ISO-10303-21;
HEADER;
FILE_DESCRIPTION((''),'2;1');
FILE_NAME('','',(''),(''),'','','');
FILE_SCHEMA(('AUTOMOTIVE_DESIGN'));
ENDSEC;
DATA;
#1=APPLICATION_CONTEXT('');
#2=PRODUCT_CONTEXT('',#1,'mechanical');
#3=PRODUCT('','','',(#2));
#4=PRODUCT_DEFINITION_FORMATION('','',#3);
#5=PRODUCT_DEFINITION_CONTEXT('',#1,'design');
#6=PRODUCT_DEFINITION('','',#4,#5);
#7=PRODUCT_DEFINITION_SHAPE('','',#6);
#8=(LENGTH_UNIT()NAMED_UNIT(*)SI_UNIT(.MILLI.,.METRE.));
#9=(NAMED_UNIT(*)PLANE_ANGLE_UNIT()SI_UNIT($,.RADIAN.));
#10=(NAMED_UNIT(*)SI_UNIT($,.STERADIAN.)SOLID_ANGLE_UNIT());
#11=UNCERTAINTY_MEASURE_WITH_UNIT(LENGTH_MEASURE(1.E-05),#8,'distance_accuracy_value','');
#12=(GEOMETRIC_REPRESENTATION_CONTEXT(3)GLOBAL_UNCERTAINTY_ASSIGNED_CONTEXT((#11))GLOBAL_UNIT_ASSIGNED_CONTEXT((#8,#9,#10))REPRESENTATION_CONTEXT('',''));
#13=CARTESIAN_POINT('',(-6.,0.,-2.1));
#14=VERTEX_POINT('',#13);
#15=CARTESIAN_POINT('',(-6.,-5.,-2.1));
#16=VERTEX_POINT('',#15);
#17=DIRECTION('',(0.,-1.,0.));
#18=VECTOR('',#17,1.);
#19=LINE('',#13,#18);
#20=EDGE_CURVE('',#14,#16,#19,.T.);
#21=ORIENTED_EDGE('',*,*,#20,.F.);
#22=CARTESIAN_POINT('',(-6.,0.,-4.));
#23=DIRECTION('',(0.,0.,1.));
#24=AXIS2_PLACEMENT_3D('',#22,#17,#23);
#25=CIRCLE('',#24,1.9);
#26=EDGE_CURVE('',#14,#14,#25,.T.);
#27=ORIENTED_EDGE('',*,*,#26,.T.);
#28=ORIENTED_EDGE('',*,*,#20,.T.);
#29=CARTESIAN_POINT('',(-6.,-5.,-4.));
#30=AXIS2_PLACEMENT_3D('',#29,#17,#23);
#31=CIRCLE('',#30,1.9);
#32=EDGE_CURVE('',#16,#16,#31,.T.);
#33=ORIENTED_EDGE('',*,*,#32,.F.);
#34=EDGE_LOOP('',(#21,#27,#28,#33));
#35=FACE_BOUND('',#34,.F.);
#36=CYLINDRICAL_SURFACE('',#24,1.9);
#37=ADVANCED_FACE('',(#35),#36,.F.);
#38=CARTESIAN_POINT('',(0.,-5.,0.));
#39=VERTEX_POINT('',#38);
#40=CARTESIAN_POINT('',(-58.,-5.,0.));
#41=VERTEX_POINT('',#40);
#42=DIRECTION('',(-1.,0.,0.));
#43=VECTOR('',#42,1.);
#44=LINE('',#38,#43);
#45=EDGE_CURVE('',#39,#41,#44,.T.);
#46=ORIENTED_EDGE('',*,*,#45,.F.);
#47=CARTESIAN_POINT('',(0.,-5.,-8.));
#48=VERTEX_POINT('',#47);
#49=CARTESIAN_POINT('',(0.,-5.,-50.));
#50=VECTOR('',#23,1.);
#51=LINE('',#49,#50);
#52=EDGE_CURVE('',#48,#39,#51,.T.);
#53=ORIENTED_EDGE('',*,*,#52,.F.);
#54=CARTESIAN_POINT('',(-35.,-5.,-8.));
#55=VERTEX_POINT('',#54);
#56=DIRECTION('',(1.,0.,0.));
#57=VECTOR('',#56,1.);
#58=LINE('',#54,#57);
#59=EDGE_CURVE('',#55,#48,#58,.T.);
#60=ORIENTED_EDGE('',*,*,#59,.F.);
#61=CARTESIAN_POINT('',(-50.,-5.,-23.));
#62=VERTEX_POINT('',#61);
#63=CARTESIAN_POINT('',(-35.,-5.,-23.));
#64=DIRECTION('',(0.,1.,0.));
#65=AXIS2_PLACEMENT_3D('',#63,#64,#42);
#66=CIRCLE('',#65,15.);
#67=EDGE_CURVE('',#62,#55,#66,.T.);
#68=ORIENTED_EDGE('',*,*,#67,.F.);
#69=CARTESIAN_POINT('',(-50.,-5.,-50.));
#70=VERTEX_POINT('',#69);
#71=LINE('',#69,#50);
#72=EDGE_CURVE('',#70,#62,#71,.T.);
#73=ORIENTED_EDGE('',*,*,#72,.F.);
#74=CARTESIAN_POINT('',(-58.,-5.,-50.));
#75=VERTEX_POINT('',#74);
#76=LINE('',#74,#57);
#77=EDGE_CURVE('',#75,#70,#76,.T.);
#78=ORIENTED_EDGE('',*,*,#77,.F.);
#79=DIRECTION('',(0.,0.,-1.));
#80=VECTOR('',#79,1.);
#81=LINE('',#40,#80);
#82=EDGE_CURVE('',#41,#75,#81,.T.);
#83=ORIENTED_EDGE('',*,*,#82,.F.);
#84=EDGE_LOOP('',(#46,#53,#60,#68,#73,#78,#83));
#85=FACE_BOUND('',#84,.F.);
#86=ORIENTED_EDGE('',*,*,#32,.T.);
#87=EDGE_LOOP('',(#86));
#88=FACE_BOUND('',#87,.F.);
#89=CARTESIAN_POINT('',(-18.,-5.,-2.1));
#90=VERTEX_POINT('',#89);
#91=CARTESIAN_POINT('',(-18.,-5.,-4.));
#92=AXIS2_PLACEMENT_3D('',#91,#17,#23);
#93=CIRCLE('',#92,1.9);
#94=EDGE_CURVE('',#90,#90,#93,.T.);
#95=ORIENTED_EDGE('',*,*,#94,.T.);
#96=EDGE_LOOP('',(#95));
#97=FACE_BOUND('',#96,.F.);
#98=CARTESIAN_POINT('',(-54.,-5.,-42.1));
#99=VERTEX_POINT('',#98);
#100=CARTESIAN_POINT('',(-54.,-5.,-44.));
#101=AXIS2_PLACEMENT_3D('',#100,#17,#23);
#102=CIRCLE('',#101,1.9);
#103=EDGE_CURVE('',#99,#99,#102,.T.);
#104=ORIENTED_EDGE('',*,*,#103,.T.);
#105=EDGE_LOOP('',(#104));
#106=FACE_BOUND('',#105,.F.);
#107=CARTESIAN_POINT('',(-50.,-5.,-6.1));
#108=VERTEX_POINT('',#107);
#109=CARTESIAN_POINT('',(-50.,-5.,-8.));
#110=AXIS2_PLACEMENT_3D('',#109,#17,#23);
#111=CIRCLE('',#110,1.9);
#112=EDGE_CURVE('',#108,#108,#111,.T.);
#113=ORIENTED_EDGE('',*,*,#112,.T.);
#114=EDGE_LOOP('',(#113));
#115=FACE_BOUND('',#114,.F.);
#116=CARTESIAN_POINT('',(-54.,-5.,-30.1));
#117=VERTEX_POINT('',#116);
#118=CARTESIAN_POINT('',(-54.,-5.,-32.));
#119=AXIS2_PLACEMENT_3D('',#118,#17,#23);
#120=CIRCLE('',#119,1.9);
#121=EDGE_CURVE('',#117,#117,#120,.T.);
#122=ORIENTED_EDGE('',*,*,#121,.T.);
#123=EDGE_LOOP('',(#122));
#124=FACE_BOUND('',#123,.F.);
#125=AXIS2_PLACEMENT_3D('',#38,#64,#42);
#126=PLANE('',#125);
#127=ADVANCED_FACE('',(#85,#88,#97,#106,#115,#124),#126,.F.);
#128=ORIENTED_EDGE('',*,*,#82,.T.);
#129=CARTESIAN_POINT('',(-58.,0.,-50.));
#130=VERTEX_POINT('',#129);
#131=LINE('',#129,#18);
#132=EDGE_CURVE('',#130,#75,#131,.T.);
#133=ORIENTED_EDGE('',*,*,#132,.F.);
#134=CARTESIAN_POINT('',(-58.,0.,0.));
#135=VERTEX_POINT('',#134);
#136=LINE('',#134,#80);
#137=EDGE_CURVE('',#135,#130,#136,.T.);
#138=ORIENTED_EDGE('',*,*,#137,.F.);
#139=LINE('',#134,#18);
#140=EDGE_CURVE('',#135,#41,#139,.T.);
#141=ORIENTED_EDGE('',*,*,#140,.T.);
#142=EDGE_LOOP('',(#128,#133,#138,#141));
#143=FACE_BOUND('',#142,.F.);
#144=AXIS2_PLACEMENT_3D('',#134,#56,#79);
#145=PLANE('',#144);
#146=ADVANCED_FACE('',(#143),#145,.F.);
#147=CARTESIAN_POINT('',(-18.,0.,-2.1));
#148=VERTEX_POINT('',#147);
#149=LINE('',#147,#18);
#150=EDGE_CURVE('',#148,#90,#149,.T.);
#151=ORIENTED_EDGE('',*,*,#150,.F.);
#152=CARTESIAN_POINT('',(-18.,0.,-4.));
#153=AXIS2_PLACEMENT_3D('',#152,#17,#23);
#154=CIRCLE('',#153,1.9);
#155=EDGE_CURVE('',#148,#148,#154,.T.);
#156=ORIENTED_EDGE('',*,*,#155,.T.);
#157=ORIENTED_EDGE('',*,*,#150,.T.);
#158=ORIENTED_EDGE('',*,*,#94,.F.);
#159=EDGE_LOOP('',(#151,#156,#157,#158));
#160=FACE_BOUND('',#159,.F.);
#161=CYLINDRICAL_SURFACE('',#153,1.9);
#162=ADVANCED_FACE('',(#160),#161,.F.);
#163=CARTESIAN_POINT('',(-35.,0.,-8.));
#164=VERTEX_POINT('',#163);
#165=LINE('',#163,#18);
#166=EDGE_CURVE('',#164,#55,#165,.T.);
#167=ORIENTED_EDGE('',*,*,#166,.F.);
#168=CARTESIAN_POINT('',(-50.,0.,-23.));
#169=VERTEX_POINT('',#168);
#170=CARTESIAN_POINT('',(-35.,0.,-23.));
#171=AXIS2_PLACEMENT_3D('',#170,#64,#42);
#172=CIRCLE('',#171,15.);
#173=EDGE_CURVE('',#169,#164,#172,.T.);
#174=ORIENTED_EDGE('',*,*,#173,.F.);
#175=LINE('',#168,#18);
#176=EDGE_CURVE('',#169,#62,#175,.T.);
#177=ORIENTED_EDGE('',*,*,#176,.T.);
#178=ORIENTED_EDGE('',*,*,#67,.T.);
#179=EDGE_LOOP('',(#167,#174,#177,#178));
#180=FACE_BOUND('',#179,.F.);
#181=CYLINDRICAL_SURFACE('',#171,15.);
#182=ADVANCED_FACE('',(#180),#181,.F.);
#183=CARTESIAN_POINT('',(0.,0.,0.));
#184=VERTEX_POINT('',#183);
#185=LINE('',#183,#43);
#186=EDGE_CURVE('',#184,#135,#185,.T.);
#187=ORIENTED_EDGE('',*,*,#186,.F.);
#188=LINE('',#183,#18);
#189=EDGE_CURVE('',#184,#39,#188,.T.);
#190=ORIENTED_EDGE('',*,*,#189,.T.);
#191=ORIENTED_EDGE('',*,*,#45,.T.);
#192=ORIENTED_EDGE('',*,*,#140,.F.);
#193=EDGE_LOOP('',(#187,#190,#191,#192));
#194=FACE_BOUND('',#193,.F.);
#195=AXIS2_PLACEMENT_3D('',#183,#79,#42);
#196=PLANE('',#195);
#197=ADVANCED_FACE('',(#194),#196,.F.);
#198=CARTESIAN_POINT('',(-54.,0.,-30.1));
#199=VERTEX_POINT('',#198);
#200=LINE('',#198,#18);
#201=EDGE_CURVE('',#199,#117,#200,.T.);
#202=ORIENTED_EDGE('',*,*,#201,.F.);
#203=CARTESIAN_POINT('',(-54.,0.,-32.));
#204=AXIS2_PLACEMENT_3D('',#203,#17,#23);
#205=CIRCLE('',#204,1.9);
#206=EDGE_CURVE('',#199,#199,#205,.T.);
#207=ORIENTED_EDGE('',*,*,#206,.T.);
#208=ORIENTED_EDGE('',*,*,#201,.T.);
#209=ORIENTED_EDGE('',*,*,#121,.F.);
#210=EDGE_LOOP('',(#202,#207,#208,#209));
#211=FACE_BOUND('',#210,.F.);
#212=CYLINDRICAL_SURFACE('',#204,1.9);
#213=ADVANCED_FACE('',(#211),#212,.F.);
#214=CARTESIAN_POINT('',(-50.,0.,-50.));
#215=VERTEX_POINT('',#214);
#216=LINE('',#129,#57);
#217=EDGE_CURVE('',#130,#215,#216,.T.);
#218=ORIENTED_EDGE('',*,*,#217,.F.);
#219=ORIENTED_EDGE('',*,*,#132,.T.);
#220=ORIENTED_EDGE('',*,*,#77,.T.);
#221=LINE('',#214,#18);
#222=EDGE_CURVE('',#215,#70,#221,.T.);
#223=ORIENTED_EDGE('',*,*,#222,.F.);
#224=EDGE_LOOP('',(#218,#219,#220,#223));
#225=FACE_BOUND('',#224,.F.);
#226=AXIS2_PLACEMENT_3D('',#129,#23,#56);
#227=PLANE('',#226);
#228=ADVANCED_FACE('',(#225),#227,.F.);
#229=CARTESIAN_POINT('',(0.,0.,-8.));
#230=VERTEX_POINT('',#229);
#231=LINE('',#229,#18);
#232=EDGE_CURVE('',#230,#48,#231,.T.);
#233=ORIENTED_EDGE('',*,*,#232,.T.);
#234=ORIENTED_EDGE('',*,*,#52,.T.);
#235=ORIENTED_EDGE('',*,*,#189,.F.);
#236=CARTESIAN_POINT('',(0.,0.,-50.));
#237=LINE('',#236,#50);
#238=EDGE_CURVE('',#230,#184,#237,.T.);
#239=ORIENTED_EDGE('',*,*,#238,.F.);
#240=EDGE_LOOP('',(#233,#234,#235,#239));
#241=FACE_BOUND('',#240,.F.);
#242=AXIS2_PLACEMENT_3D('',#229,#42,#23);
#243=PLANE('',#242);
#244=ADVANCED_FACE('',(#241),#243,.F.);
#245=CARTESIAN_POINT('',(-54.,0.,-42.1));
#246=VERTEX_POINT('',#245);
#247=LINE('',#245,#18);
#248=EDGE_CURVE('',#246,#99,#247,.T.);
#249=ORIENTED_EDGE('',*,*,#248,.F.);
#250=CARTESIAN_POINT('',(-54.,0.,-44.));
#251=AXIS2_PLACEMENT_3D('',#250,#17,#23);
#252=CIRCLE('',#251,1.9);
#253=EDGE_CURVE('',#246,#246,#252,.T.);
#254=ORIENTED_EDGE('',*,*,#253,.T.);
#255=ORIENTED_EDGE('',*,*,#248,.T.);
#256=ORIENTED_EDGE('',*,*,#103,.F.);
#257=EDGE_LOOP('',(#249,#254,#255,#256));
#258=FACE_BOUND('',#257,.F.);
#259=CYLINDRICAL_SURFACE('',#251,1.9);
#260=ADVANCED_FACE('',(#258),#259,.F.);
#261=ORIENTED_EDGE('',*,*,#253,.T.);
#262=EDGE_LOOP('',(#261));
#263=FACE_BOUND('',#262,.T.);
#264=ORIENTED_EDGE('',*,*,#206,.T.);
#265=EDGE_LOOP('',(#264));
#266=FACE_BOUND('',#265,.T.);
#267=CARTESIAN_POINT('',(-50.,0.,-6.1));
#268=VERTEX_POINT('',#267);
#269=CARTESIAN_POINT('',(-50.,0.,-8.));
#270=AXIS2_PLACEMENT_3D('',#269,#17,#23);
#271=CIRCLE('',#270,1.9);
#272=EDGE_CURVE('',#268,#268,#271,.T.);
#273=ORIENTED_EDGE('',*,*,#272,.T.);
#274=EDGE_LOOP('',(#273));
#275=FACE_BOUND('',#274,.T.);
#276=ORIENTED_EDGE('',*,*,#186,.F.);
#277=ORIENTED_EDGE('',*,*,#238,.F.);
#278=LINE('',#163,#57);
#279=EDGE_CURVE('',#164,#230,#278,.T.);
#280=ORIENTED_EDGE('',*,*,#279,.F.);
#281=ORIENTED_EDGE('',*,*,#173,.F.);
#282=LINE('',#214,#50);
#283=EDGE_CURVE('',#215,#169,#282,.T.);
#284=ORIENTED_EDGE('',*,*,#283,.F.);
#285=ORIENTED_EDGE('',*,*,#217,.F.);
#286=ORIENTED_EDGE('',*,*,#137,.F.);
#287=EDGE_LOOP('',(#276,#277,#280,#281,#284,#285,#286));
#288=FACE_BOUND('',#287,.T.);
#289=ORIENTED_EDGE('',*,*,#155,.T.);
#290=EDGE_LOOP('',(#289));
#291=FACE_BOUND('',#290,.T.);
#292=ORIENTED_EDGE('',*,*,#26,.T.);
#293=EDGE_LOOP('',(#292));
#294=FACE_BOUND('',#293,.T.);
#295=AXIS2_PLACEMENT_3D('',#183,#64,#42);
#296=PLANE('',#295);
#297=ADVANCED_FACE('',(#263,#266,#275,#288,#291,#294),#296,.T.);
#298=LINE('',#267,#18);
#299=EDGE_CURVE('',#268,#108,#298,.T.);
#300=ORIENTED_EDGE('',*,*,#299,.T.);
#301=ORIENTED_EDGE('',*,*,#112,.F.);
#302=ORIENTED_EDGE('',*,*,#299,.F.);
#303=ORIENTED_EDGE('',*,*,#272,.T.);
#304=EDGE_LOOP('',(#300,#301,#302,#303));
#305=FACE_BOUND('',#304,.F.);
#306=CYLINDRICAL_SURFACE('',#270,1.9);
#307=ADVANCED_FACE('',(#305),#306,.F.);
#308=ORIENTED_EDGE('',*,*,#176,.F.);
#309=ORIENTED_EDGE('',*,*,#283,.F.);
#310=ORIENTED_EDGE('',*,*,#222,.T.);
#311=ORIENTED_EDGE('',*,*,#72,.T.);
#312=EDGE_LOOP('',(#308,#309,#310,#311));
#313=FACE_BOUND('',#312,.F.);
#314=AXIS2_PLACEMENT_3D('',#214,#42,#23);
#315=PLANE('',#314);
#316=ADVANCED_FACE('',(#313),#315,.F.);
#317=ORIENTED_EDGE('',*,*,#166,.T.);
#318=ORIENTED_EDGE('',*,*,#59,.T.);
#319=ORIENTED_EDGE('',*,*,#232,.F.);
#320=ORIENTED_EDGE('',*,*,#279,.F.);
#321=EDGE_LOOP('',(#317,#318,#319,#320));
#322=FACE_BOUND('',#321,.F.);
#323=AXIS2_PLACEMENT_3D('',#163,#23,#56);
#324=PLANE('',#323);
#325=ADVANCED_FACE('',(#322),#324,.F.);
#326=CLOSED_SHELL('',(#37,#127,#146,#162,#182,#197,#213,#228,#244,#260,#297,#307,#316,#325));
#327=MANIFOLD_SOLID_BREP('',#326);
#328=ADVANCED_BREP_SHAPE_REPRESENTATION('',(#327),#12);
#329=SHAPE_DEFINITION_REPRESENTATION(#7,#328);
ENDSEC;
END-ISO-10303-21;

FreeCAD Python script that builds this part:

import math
import FreeCAD as App
import Part
import Sketcher
from FreeCAD import Vector

doc = App.newDocument("Part")
body = doc.addObject("PartDesign::Body", "Body")

# Sketch on XZ plane
sketch1 = body.newObject("Sketcher::SketchObject", "Sketch")
sketch1.AttachmentSupport = (doc.getObject("XZ_Plane"), [""])
sketch1.MapMode = "FlatFace"
sketch1.addGeometry([
    Part.LineSegment(Vector(-58, 0, 0), Vector(0, 0, 0)),  # 0
    Part.LineSegment(Vector(0, 0, 0), Vector(0, -8, 0)),  # 1
    Part.LineSegment(Vector(0, -8, 0), Vector(-35, -8, 0)),  # 2
    Part.ArcOfCircle(Part.Circle(Vector(-35, -23, 0), Vector(0, 0, 1), 15), math.radians(90), math.radians(180)),  # 3
    Part.LineSegment(Vector(-50, -23, 0), Vector(-50, -50, 0)),  # 4
    Part.LineSegment(Vector(-50, -50, 0), Vector(-58, -50, 0)),  # 5
    Part.LineSegment(Vector(-58, -50, 0), Vector(-58, 0, 0)),  # 6
], False)
sketch1.addConstraint([
    Sketcher.Constraint("Coincident", 0, 2, 1, 1),
    Sketcher.Constraint("Coincident", 1, 2, 2, 1),
    Sketcher.Constraint("Tangent", 2, 2, 3, 1),
    Sketcher.Constraint("Tangent", 3, 2, 4, 1),
    Sketcher.Constraint("Coincident", 4, 2, 5, 1),
    Sketcher.Constraint("Coincident", 5, 2, 6, 1),
    Sketcher.Constraint("Coincident", 6, 2, 0, 1),
    Sketcher.Constraint("Horizontal", 0),
    Sketcher.Constraint("Vertical", 1),
    Sketcher.Constraint("Horizontal", 2),
    Sketcher.Constraint("Vertical", 4),
    Sketcher.Constraint("Horizontal", 5),
    Sketcher.Constraint("Vertical", 6),
    Sketcher.Constraint("Coincident", 0, 2, -1, 1),
    Sketcher.Constraint("Equal", 5, 1),
    Sketcher.Constraint("Radius", 3, 15.0),
    Sketcher.Constraint("DistanceX", 0, 1, 0, 2, 58.0),
    Sketcher.Constraint("DistanceY", 6, 1, 6, 2, 50.0),
    Sketcher.Constraint("DistanceX", 3, 2, -1, 1, 50.0),
])
pad1 = body.newObject("PartDesign::Pad", "Pad")
pad1.Profile = sketch1
pad1.Length = 5

# Sketch on XZ plane
sketch2 = body.newObject("Sketcher::SketchObject", "Sketch001")
sketch2.AttachmentSupport = (doc.getObject("XZ_Plane"), [""])
sketch2.MapMode = "FlatFace"
sketch2.addGeometry([
    Part.Circle(Vector(-6, -4, 0), Vector(0, 0, 1), 1.9),  # 0
    Part.Circle(Vector(-18, -4, 0), Vector(0, 0, 1), 1.9),  # 1
    Part.Circle(Vector(-54, -32, 0), Vector(0, 0, 1), 1.9),  # 2
    Part.Circle(Vector(-54, -44, 0), Vector(0, 0, 1), 1.9),  # 3
    Part.Circle(Vector(-50, -8, 0), Vector(0, 0, 1), 1.9),  # 4
], False)
sketch2.addConstraint([
    Sketcher.Constraint("Equal", 0, 1),
    Sketcher.Constraint("Equal", 1, 2),
    Sketcher.Constraint("Equal", 2, 3),
    Sketcher.Constraint("Equal", 3, 4),
    Sketcher.Constraint("Horizontal", 0, 3, 1, 3),
    Sketcher.Constraint("Vertical", 2, 3, 3, 3),
    Sketcher.Constraint("Diameter", 0, 3.8),
    Sketcher.Constraint("DistanceX", 0, 3, -1, 1, 6.0),
    Sketcher.Constraint("DistanceY", 0, 3, -1, 1, 4.0),
    Sketcher.Constraint("DistanceX", 1, 3, -1, 1, 18.0),
    Sketcher.Constraint("DistanceX", 2, 3, -1, 1, 54.0),
    Sketcher.Constraint("DistanceY", 2, 3, -1, 1, 32.0),
    Sketcher.Constraint("DistanceY", 3, 3, -1, 1, 44.0),
    Sketcher.Constraint("DistanceX", 4, 3, -1, 1, 50.0),
    Sketcher.Constraint("DistanceY", 4, 3, -1, 1, 8.0),
])
doc.recompute()
hole = body.newObject("PartDesign::Hole", "Hole")
hole.Profile = sketch2
hole.ThreadType = "None"
hole.Diameter = 3.8
hole.DepthType = "ThroughAll"
hole.Reversed = True

doc.recompute()
